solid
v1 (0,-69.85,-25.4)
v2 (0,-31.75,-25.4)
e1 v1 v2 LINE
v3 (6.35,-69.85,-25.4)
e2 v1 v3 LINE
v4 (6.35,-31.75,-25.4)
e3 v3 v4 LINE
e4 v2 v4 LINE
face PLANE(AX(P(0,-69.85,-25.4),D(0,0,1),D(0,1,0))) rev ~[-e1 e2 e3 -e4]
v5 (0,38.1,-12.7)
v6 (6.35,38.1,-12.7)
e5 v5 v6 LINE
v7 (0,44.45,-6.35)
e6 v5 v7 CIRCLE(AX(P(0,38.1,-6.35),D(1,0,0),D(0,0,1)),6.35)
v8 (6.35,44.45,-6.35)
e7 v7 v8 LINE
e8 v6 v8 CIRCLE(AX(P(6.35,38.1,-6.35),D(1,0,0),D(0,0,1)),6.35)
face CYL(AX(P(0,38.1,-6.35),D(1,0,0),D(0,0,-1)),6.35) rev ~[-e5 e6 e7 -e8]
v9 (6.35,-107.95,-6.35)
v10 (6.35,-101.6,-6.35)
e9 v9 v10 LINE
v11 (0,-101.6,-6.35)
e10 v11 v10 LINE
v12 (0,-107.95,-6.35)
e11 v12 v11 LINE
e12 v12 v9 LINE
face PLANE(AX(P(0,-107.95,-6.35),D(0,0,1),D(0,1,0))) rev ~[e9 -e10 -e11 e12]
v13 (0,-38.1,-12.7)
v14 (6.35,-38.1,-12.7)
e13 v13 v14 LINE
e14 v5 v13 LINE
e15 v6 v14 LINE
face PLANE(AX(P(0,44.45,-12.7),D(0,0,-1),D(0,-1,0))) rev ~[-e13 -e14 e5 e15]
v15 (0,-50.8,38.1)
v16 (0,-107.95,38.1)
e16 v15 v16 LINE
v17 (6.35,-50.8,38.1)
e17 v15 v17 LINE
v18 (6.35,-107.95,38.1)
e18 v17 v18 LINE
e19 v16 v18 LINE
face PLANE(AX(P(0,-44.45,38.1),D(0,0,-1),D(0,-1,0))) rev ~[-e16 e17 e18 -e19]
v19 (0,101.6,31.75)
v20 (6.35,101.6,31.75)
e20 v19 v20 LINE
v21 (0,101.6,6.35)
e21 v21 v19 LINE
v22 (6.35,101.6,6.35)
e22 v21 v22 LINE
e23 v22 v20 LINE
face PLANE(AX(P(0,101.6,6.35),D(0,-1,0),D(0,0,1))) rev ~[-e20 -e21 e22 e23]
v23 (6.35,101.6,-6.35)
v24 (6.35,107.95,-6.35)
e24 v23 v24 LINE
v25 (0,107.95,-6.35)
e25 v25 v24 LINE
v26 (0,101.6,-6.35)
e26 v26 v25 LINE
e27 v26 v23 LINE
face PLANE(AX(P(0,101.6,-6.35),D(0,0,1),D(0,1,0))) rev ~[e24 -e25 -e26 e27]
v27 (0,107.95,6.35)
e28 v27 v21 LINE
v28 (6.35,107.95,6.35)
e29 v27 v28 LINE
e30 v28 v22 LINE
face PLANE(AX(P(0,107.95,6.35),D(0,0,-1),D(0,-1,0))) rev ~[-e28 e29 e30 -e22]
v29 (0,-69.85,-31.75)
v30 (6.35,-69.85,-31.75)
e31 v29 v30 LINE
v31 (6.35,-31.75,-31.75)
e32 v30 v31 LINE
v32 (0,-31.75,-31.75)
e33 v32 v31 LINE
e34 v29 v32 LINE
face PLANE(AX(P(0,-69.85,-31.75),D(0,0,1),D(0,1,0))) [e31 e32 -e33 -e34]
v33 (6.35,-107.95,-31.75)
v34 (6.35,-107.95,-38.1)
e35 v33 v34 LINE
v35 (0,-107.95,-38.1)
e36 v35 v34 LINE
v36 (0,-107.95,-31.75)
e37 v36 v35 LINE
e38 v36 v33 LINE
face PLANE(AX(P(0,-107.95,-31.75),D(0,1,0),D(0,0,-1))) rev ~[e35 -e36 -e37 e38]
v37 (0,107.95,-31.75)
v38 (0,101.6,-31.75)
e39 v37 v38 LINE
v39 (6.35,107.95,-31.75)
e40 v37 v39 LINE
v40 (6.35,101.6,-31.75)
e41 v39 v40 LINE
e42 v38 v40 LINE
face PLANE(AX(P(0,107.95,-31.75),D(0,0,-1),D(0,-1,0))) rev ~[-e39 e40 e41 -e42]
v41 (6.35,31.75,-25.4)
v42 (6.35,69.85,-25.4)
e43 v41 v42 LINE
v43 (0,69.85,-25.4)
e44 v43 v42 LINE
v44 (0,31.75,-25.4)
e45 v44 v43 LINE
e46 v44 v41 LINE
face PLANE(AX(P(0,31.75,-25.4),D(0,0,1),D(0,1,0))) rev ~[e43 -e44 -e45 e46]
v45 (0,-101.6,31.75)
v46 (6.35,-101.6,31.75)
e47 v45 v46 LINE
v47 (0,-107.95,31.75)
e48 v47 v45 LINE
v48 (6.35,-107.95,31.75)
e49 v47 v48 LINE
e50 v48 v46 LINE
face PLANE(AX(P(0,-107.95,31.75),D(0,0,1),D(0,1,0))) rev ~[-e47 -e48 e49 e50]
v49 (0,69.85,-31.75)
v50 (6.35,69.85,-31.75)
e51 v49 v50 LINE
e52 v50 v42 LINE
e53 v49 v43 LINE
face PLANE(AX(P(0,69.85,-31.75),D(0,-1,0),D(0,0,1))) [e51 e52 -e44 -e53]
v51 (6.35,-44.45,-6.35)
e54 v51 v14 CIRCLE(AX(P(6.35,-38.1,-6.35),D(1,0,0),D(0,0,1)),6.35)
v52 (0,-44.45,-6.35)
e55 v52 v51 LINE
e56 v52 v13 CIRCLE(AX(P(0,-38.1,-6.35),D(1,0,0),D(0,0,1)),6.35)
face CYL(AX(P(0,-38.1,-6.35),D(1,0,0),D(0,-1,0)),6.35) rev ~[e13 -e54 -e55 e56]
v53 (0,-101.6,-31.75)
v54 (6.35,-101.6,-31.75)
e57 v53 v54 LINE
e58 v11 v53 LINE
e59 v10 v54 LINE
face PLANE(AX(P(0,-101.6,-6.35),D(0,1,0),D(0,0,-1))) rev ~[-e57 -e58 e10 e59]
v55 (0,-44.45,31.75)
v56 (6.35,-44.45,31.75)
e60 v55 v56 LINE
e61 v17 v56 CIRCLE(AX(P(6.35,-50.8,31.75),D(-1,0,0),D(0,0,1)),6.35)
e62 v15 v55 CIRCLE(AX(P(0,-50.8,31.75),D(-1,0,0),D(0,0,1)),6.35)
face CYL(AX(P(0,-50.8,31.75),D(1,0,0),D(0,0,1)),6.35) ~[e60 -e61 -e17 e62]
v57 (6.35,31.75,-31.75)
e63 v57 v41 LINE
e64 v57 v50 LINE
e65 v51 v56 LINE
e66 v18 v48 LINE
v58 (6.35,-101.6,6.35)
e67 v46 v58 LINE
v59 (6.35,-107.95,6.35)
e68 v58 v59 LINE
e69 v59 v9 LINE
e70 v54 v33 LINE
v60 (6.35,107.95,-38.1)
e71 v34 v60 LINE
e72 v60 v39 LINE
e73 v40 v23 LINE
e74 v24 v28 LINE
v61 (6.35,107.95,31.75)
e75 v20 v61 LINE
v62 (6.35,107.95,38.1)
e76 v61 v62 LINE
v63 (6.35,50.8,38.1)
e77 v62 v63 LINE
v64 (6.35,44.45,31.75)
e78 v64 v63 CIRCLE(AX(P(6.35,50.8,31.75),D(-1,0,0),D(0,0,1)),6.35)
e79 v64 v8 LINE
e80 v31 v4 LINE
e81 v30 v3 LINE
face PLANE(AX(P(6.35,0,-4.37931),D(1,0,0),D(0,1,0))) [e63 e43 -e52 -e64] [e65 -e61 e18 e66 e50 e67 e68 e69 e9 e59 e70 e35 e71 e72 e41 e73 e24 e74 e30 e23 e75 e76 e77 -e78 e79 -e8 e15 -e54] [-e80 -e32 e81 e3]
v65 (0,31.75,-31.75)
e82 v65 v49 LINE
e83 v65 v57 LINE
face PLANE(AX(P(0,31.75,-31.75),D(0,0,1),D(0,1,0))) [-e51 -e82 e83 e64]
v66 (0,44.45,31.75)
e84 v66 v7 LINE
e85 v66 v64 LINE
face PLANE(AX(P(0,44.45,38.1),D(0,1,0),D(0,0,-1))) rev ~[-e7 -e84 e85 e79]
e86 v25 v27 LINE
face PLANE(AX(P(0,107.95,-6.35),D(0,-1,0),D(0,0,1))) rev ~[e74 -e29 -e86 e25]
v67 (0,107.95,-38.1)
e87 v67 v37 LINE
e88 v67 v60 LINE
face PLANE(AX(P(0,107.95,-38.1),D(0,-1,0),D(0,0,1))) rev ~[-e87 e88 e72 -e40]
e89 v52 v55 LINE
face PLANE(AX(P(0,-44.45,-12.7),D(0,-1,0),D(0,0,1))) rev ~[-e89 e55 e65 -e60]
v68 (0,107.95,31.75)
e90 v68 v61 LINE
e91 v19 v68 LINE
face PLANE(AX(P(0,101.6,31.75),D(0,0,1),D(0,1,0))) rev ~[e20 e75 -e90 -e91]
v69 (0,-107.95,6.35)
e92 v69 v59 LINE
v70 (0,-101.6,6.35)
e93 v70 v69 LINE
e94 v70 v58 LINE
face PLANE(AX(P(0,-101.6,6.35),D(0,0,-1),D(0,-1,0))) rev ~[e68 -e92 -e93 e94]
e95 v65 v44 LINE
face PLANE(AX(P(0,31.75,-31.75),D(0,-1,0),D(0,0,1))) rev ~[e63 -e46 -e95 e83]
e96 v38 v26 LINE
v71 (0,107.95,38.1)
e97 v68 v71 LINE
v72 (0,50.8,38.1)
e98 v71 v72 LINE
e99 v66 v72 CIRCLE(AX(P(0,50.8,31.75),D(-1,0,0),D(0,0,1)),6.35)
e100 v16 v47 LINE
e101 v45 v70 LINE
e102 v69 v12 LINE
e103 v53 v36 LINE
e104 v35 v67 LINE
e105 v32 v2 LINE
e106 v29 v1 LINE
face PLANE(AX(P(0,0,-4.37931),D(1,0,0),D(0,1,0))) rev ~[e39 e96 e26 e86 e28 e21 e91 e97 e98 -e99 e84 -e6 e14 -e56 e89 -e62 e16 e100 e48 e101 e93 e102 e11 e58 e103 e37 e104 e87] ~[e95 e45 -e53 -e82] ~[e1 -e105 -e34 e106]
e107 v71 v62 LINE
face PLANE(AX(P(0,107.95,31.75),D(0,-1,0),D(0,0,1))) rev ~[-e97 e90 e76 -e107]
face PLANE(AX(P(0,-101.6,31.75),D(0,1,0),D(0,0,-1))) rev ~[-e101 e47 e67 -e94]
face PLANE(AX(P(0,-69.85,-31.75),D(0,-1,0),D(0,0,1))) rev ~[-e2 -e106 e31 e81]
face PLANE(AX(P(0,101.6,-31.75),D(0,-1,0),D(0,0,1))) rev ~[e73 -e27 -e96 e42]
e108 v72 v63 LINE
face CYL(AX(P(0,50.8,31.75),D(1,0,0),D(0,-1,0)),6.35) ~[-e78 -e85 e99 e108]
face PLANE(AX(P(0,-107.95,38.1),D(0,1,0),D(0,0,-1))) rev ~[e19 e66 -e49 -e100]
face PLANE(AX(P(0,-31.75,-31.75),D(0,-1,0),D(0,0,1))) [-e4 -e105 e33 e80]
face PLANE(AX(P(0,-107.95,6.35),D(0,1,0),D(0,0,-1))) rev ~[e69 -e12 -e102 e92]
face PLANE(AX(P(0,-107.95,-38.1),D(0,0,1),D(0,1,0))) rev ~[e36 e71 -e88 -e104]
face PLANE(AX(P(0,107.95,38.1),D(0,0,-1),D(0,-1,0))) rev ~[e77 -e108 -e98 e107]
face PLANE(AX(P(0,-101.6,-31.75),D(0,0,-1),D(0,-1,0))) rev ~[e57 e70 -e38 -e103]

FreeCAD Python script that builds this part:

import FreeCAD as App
import Part
import Sketcher

V = App.Vector
Q = App.Units.Quantity


def edges_at(feature, points):
    """Names of the edges that pass closest to the given points."""
    edges = feature.Shape.Edges
    near = lambda p: min(range(len(edges)), key=lambda i: edges[i].distToShape(Part.Vertex(*p))[0])
    return sorted({f"Edge{near(p) + 1}" for p in points})

doc = App.newDocument("Part")
params = doc.addObject("Spreadsheet::Sheet", "Params")
for row, (alias, value) in enumerate([
    ("sketch1_height", "1 in"),
    ("sketch1_height2", "2 in"),
    ("sketch1_width", "2.5 in"),
    ("sketch1_width2", "8.5 in"),
    ("sketch1_width3", "1.5 in"),
    ("pad1_length", "0.25 in"),
    ("fillet_radius", "0.25 in"),
], start=1):
    params.set(f"A{row}", alias)
    params.set(f"B{row}", "=" + value)
    params.setAlias(f"B{row}", alias)

body = doc.addObject("PartDesign::Body", "Body")

# Sketch on YZ plane
sketch1 = body.newObject("Sketcher::SketchObject", "Sketch")
sketch1.AttachmentSupport = (doc.getObject("YZ_Plane"), [""])
sketch1.MapMode = "FlatFace"
sketch1.addGeometry([
    Part.LineSegment(V(-44, 38, 0), V(-108, 38, 0)),  # 0
    Part.LineSegment(V(-108, 38, 0), V(-108, 32, 0)),  # 1
    Part.LineSegment(V(-108, 32, 0), V(-102, 32, 0)),  # 2
    Part.LineSegment(V(-102, 32, 0), V(-102, 6, 0)),  # 3
    Part.LineSegment(V(-102, 6, 0), V(-108, 6, 0)),  # 4
    Part.LineSegment(V(-108, 6, 0), V(-108, -6, 0)),  # 5
    Part.LineSegment(V(-108, -6, 0), V(-102, -6, 0)),  # 6
    Part.LineSegment(V(-102, -6, 0), V(-102, -32, 0)),  # 7
    Part.LineSegment(V(-102, -32, 0), V(-108, -32, 0)),  # 8
    Part.LineSegment(V(-108, -32, 0), V(-108, -38, 0)),  # 9
    Part.LineSegment(V(-108, -38, 0), V(108, -38, 0)),  # 10
    Part.LineSegment(V(108, -38, 0), V(108, -32, 0)),  # 11
    Part.LineSegment(V(108, -32, 0), V(102, -32, 0)),  # 12
    Part.LineSegment(V(102, -32, 0), V(102, -6, 0)),  # 13
    Part.LineSegment(V(102, -6, 0), V(108, -6, 0)),  # 14
    Part.LineSegment(V(108, -6, 0), V(108, 6, 0)),  # 15
    Part.LineSegment(V(108, 6, 0), V(102, 6, 0)),  # 16
    Part.LineSegment(V(102, 6, 0), V(102, 32, 0)),  # 17
    Part.LineSegment(V(102, 32, 0), V(108, 32, 0)),  # 18
    Part.LineSegment(V(108, 32, 0), V(108, 38, 0)),  # 19
    Part.LineSegment(V(108, 38, 0), V(44, 38, 0)),  # 20
    Part.LineSegment(V(44, 38, 0), V(44, -13, 0)),  # 21
    Part.LineSegment(V(44, -13, 0), V(-44, -13, 0)),  # 22
    Part.LineSegment(V(-44, -13, 0), V(-44, 38, 0)),  # 23
    Part.LineSegment(V(-32, -32, 0), V(-70, -32, 0)),  # 24
    Part.LineSegment(V(-70, -32, 0), V(-70, -25, 0)),  # 25
    Part.LineSegment(V(-70, -25, 0), V(-32, -25, 0)),  # 26
    Part.LineSegment(V(-32, -25, 0), V(-32, -32, 0)),  # 27
    Part.LineSegment(V(70, -32, 0), V(32, -32, 0)),  # 28
    Part.LineSegment(V(32, -32, 0), V(32, -25, 0)),  # 29
    Part.LineSegment(V(32, -25, 0), V(70, -25, 0)),  # 30
    Part.LineSegment(V(70, -25, 0), V(70, -32, 0)),  # 31
], False)
sketch1.addConstraint([
    Sketcher.Constraint("Coincident", 0, 2, 1, 1),
    Sketcher.Constraint("Coincident", 1, 2, 2, 1),
    Sketcher.Constraint("Coincident", 2, 2, 3, 1),
    Sketcher.Constraint("Coincident", 3, 2, 4, 1),
    Sketcher.Constraint("Coincident", 4, 2, 5, 1),
    Sketcher.Constraint("Coincident", 5, 2, 6, 1),
    Sketcher.Constraint("Coincident", 6, 2, 7, 1),
    Sketcher.Constraint("Coincident", 7, 2, 8, 1),
    Sketcher.Constraint("Coincident", 8, 2, 9, 1),
    Sketcher.Constraint("Coincident", 9, 2, 10, 1),
    Sketcher.Constraint("Coincident", 10, 2, 11, 1),
    Sketcher.Constraint("Coincident", 11, 2, 12, 1),
    Sketcher.Constraint("Coincident", 12, 2, 13, 1),
    Sketcher.Constraint("Coincident", 13, 2, 14, 1),
    Sketcher.Constraint("Coincident", 14, 2, 15, 1),
    Sketcher.Constraint("Coincident", 15, 2, 16, 1),
    Sketcher.Constraint("Coincident", 16, 2, 17, 1),
    Sketcher.Constraint("Coincident", 17, 2, 18, 1),
    Sketcher.Constraint("Coincident", 18, 2, 19, 1),
    Sketcher.Constraint("Coincident", 19, 2, 20, 1),
    Sketcher.Constraint("Coincident", 20, 2, 21, 1),
    Sketcher.Constraint("Coincident", 21, 2, 22, 1),
    Sketcher.Constraint("Coincident", 22, 2, 23, 1),
    Sketcher.Constraint("Coincident", 23, 2, 0, 1),
    Sketcher.Constraint("Coincident", 24, 2, 25, 1),
    Sketcher.Constraint("Coincident", 25, 2, 26, 1),
    Sketcher.Constraint("Coincident", 26, 2, 27, 1),
    Sketcher.Constraint("Coincident", 27, 2, 24, 1),
    Sketcher.Constraint("Coincident", 28, 2, 29, 1),
    Sketcher.Constraint("Coincident", 29, 2, 30, 1),
    Sketcher.Constraint("Coincident", 30, 2, 31, 1),
    Sketcher.Constraint("Coincident", 31, 2, 28, 1),
    Sketcher.Constraint("Horizontal", 0),
    Sketcher.Constraint("Vertical", 1),
    Sketcher.Constraint("Horizontal", 2),
    Sketcher.Constraint("Vertical", 3),
    Sketcher.Constraint("Horizontal", 4),
    Sketcher.Constraint("Vertical", 5),
    Sketcher.Constraint("Horizontal", 6),
    Sketcher.Constraint("Vertical", 7),
    Sketcher.Constraint("Horizontal", 8),
    Sketcher.Constraint("Vertical", 9),
    Sketcher.Constraint("Horizontal", 10),
    Sketcher.Constraint("Vertical", 11),
    Sketcher.Constraint("Horizontal", 12),
    Sketcher.Constraint("Vertical", 13),
    Sketcher.Constraint("Horizontal", 14),
    Sketcher.Constraint("Vertical", 15),
    Sketcher.Constraint("Horizontal", 16),
    Sketcher.Constraint("Vertical", 17),
    Sketcher.Constraint("Horizontal", 18),
    Sketcher.Constraint("Vertical", 19),
    Sketcher.Constraint("Horizontal", 20),
    Sketcher.Constraint("Vertical", 21),
    Sketcher.Constraint("Horizontal", 22),
    Sketcher.Constraint("Vertical", 23),
    Sketcher.Constraint("Horizontal", 24),
    Sketcher.Constraint("Vertical", 25),
    Sketcher.Constraint("Horizontal", 26),
    Sketcher.Constraint("Vertical", 27),
    Sketcher.Constraint("Horizontal", 28),
    Sketcher.Constraint("Vertical", 29),
    Sketcher.Constraint("Horizontal", 30),
    Sketcher.Constraint("Vertical", 31),
    Sketcher.Constraint("Symmetric", 0, 2, 10, 2, -1, 1),
    Sketcher.Constraint("Symmetric", 2, 2, 12, 2, -1, 1),
    Sketcher.Constraint("Symmetric", 4, 2, 14, 2, -1, 1),
    Sketcher.Constraint("Symmetric", 6, 2, 16, 2, -1, 1),
    Sketcher.Constraint("Symmetric", 8, 2, 18, 2, -1, 1),
    Sketcher.Constraint("Symmetric", 8, 2, 11, 2, -2),
    Sketcher.Constraint("Symmetric", 6, 2, 13, 2, -2),
    Sketcher.Constraint("Symmetric", 20, 2, 23, 2, -2),
    Sketcher.Constraint("Symmetric", 27, 2, 28, 2, -2),
    Sketcher.Constraint("Symmetric", 25, 2, 30, 2, -2),
    Sketcher.Constraint("Horizontal", 12, 2, 24, 2),
    Sketcher.Constraint("Vertical", 1, 2, 4, 2),
    Sketcher.Constraint("Equal", 18, 1),
    Sketcher.Constraint("Equal", 19, 25),
    Sketcher.Constraint("DistanceY", 3, 2, 3, 1, Q("1 in")),
    Sketcher.Constraint("DistanceY", 21, 2, 21, 1, Q("2 in")),
    Sketcher.Constraint("DistanceX", 0, 2, 0, 1, Q("2.5 in")),
    Sketcher.Constraint("DistanceX", 10, 1, 10, 2, Q("8.5 in")),
    Sketcher.Constraint("DistanceX", 24, 2, 24, 1, Q("1.5 in")),
    Sketcher.Constraint("DistanceY", 5, 2, 5, 1, Q("0.5 in")),
    Sketcher.Constraint("DistanceX", 2, 2, -1, 1, Q("4 in")),
    Sketcher.Constraint("DistanceX", 24, 2, 22, 2, Q("1 in")),
])
sketch1.setExpression("Constraints[78]", "Params.sketch1_height")
sketch1.setExpression("Constraints[79]", "Params.sketch1_height2")
sketch1.setExpression("Constraints[80]", "Params.sketch1_width")
sketch1.setExpression("Constraints[81]", "Params.sketch1_width2")
sketch1.setExpression("Constraints[82]", "Params.sketch1_width3")
pad1 = body.newObject("PartDesign::Pad", "Pad")
pad1.Profile = sketch1
pad1.setExpression("Length", "Params.pad1_length")
doc.recompute()

fillet = body.newObject("PartDesign::Fillet", "Fillet")
fillet.Base = (pad1, edges_at(pad1, [
    (3.175, -44.45, 38.1),
    (3.175, -44.45, -12.7),
    (3.175, 44.45, 38.1),
    (3.175, 44.45, -12.7),
]))
fillet.setExpression("Radius", "Params.fillet_radius")

doc.recompute()
